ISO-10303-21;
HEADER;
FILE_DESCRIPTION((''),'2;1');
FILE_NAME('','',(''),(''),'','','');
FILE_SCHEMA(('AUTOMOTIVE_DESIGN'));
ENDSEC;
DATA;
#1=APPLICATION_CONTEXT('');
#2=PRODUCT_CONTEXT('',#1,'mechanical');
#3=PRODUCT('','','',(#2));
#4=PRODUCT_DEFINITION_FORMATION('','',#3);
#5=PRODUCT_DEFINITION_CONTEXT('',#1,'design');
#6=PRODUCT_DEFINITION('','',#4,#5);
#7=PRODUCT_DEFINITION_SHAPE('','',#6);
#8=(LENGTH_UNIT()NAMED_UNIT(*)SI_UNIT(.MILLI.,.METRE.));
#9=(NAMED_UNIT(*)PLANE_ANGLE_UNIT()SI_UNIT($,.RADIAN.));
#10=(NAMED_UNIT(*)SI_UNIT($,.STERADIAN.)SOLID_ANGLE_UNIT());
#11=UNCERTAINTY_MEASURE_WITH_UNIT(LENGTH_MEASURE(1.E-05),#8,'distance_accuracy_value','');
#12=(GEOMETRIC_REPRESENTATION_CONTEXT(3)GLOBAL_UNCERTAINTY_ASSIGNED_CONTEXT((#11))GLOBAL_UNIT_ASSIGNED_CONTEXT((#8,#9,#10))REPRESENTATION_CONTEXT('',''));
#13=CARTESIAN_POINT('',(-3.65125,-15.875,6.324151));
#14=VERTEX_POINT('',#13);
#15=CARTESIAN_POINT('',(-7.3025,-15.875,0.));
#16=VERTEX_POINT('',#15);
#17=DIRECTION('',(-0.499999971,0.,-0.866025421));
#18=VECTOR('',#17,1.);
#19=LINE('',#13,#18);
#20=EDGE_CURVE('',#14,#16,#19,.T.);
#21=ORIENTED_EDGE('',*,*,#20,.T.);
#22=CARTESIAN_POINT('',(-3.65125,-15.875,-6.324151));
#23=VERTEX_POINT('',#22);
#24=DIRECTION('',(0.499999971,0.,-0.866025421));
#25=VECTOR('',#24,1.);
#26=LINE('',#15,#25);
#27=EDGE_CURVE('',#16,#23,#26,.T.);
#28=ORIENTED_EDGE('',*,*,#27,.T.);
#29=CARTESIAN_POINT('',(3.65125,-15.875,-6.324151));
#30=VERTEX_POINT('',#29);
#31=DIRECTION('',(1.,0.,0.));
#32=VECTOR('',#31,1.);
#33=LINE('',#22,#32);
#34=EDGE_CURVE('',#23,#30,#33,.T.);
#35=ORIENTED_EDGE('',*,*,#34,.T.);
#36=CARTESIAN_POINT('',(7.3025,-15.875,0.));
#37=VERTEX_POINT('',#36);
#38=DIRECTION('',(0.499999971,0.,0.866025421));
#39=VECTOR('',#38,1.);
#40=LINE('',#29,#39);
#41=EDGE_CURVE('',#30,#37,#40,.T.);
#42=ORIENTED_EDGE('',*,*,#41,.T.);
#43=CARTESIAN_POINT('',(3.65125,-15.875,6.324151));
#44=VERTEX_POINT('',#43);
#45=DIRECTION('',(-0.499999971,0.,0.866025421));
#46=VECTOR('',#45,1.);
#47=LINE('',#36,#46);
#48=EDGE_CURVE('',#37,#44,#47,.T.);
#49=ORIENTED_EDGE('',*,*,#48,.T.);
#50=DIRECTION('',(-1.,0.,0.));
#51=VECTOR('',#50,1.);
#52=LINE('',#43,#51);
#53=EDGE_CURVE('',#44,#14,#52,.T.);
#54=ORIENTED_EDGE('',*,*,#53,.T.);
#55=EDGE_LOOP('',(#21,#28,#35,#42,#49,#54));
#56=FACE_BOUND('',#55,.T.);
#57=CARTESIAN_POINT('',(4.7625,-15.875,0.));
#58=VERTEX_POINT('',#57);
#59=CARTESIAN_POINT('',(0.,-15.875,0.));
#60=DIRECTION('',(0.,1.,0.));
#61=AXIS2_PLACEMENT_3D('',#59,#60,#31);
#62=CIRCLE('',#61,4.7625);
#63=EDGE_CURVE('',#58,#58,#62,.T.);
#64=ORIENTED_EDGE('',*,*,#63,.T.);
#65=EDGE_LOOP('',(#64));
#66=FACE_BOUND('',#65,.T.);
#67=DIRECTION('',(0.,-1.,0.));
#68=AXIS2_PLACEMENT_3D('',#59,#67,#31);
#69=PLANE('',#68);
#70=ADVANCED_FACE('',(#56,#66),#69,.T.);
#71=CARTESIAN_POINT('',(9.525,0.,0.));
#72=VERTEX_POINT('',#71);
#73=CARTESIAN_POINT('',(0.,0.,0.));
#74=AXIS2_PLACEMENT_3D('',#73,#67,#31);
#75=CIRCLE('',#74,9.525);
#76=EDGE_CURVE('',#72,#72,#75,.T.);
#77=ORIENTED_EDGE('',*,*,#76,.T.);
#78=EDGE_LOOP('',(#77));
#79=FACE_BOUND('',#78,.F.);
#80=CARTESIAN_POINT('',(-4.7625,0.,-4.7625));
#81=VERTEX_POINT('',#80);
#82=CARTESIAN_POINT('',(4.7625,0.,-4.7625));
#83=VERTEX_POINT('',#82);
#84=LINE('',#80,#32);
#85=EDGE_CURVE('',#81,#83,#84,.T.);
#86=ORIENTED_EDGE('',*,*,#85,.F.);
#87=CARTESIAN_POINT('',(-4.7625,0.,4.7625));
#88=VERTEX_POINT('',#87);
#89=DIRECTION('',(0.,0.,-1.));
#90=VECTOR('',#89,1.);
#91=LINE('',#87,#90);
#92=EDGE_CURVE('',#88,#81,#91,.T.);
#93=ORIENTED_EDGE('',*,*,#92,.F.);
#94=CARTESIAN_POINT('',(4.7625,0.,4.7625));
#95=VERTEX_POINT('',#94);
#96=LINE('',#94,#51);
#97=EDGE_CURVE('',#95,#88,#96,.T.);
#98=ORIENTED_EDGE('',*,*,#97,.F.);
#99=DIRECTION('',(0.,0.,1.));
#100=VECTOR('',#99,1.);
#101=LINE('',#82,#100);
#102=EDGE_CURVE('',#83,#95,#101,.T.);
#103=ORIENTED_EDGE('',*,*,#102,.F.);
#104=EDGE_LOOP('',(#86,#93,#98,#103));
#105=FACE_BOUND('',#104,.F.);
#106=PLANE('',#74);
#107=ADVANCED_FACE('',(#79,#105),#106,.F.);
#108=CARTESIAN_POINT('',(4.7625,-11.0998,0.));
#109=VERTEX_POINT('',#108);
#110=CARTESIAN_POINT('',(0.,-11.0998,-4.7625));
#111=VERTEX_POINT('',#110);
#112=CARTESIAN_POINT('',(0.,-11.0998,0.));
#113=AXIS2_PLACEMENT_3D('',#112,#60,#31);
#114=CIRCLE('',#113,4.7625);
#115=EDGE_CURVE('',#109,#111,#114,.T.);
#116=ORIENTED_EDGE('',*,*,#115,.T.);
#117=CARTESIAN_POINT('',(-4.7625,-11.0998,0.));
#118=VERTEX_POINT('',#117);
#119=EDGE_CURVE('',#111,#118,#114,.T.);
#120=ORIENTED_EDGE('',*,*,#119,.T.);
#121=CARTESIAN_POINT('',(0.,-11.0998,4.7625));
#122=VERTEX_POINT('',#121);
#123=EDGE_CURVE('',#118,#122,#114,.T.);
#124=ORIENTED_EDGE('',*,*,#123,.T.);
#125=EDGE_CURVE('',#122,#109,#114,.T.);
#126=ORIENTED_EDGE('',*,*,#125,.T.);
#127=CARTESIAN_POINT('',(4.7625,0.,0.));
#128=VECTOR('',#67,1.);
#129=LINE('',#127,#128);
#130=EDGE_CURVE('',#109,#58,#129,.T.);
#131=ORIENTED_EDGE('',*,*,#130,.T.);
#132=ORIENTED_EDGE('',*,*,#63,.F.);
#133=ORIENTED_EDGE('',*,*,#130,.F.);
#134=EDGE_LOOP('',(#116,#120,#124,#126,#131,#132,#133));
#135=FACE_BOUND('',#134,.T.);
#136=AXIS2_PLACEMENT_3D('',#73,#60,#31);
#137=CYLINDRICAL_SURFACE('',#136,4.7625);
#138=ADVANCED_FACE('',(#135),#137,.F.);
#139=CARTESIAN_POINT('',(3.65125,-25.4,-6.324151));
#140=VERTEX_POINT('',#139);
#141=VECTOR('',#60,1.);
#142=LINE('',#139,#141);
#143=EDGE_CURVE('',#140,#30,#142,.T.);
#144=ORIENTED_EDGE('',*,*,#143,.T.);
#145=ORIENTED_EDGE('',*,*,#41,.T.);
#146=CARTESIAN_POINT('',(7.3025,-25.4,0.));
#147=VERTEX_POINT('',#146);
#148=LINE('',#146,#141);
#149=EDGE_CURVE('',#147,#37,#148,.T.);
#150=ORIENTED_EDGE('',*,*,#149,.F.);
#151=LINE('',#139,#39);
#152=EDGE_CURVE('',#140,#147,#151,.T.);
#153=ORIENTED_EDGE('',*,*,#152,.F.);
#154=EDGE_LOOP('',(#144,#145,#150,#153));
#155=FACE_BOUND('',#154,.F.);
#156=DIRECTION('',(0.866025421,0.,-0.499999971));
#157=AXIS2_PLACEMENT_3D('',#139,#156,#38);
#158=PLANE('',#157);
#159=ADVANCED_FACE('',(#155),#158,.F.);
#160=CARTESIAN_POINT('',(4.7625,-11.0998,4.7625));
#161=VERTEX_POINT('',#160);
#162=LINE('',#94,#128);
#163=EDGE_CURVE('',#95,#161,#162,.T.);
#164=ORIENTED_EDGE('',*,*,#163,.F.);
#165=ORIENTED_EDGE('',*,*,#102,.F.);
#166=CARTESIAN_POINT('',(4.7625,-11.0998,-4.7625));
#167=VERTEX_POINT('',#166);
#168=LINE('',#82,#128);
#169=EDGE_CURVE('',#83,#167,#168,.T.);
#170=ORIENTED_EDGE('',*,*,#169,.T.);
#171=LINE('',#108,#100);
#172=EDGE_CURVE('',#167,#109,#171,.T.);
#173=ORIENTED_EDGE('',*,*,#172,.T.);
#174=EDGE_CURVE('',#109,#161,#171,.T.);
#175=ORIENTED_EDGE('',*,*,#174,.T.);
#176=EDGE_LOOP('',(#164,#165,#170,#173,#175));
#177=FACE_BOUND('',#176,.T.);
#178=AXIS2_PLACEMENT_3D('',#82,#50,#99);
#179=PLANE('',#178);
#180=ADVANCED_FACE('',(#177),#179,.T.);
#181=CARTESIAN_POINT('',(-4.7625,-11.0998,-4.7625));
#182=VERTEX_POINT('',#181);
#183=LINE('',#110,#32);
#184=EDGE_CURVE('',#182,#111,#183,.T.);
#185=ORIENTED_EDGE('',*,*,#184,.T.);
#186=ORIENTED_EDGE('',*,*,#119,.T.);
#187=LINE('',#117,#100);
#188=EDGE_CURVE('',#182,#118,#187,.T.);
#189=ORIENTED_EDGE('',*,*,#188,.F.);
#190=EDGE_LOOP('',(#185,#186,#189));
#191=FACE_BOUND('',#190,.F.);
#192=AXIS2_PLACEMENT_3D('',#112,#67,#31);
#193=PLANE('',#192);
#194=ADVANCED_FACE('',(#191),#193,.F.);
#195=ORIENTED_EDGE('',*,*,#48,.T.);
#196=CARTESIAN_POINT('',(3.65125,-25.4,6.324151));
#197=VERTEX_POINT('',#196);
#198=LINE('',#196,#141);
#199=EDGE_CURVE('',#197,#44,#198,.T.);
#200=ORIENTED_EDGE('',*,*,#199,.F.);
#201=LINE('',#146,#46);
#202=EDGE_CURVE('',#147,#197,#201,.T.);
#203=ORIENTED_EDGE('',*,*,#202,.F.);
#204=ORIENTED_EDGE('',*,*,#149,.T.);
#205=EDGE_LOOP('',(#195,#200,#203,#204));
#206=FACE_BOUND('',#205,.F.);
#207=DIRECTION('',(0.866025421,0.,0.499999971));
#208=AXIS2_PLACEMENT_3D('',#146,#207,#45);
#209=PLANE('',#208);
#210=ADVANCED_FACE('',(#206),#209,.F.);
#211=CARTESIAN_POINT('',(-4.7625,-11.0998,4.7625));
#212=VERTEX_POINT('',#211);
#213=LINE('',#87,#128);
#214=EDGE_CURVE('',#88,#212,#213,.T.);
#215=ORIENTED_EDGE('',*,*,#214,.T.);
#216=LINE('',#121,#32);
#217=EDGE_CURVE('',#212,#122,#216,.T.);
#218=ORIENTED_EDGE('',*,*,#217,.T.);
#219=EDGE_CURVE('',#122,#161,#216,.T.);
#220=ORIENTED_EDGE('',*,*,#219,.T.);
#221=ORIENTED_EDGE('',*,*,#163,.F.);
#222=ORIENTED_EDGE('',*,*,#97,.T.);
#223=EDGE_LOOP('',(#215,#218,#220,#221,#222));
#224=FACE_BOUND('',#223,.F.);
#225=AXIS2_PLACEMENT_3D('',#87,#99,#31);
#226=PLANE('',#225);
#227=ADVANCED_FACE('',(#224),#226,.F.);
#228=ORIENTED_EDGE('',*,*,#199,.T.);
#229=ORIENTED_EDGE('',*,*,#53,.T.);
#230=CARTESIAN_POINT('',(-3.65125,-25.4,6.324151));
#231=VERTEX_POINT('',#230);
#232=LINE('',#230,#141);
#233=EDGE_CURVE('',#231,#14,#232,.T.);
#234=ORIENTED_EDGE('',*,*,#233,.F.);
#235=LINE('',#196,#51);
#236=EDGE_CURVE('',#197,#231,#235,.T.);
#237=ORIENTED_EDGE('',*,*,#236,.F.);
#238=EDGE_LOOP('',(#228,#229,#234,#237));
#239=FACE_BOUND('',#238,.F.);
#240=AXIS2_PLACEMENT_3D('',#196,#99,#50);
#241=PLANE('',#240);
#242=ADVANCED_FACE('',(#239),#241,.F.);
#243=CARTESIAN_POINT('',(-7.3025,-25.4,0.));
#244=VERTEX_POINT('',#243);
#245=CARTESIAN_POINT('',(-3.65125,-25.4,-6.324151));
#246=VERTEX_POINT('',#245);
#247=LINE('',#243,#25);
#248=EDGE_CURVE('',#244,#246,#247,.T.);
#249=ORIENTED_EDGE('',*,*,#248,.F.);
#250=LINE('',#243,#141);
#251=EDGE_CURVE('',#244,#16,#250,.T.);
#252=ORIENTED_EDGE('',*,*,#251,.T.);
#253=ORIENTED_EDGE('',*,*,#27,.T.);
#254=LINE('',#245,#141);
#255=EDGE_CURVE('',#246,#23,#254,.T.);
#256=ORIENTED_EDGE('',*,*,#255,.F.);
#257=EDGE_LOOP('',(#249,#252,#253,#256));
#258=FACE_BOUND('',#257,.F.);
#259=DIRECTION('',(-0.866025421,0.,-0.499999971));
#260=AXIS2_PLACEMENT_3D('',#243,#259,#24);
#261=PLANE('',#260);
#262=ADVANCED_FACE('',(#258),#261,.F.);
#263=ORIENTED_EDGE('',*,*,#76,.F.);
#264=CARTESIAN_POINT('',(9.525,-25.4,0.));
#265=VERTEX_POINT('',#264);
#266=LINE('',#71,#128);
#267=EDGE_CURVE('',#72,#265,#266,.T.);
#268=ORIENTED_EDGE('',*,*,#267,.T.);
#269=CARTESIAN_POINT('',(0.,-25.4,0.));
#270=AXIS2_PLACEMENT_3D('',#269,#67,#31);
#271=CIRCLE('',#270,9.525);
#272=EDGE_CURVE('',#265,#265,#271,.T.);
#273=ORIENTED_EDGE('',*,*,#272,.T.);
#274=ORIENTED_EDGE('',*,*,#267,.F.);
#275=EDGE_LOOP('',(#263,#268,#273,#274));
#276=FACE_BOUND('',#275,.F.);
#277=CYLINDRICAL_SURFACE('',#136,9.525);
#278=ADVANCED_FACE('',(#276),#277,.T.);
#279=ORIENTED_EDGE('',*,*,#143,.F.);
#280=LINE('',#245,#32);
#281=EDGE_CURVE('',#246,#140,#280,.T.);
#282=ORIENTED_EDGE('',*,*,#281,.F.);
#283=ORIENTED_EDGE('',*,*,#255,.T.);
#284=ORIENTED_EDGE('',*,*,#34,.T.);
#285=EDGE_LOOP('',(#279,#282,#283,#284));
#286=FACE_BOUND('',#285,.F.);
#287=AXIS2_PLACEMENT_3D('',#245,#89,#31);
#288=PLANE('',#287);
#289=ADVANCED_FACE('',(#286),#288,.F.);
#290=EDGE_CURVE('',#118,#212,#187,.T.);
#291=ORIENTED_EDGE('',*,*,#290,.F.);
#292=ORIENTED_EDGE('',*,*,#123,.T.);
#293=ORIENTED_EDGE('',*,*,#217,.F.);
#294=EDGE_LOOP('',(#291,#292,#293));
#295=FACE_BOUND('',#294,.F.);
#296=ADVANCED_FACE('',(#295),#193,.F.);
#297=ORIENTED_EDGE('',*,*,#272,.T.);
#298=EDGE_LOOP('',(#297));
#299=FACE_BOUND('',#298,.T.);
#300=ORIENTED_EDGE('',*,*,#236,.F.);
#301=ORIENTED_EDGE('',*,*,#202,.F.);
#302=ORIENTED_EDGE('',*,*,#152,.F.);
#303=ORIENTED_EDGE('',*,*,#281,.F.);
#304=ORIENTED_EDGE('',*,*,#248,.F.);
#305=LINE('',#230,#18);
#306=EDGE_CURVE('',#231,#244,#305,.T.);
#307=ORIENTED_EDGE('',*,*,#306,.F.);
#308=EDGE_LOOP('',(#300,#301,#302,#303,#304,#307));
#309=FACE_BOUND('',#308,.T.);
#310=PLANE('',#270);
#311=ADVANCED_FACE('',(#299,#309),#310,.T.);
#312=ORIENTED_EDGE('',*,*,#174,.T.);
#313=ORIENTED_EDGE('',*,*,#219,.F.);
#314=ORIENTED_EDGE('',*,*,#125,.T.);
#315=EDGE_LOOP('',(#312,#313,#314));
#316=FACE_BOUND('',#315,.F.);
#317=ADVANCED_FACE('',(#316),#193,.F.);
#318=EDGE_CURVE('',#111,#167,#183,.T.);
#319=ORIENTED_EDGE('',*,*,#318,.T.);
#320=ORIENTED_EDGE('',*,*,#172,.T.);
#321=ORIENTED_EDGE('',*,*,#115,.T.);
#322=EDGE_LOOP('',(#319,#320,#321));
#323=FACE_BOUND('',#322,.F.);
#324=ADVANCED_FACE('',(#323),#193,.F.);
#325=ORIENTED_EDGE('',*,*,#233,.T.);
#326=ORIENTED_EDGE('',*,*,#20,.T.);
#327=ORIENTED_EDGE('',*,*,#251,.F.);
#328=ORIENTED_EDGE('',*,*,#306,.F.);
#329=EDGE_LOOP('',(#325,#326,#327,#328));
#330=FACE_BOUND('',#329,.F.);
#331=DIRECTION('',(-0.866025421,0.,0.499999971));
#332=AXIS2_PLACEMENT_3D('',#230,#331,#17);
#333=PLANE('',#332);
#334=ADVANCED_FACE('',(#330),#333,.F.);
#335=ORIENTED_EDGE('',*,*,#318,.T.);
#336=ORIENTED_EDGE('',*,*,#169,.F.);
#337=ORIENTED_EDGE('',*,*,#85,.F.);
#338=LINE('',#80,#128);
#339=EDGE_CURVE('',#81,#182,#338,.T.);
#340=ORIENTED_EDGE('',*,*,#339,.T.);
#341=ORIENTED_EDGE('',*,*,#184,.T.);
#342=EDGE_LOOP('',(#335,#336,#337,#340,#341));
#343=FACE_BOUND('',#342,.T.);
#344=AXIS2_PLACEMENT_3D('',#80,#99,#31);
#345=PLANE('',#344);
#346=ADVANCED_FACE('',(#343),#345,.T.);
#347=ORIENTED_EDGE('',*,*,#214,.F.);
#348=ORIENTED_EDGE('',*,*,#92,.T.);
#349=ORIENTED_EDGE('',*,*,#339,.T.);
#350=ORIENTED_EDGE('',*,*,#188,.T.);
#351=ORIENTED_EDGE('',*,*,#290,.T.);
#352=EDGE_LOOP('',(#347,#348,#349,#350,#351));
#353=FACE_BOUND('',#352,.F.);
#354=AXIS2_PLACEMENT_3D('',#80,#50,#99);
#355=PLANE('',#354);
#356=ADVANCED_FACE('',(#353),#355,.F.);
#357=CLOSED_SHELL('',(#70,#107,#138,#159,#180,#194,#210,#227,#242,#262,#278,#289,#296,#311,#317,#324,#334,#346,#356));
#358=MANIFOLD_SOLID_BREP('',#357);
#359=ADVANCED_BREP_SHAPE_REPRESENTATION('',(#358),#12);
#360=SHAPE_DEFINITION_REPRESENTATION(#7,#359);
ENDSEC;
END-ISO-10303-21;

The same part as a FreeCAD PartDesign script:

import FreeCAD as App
import Part
import Sketcher
from FreeCAD import Vector
Q = App.Units.Quantity

doc = App.newDocument("Part")
body = doc.addObject("PartDesign::Body", "Body")

sketch1 = doc.addObject("Sketcher::SketchObject", "Sketch")
body.addObject(sketch1)
sketch1.AttachmentSupport = (doc.XZ_Plane, [""])
sketch1.MapMode = "FlatFace"
sketch1.addGeometry(Part.Circle(Vector(0, 0, 0), Vector(0, 0, 1), 9.525), False)
sketch1.addConstraint([
    Sketcher.Constraint("Coincident", 0, 3, -1, 1),
    Sketcher.Constraint("Diameter", 0, Q("0.75 in")),
])
pad1 = doc.addObject("PartDesign::Pad", "Pad")
body.addObject(pad1)
pad1.Profile = sketch1
pad1.Length = Q("1 in")

sketch2 = doc.addObject("Sketcher::SketchObject", "Sketch001")
body.addObject(sketch2)
sketch2.AttachmentSupport = (doc.XZ_Plane, [""])
sketch2.MapMode = "FlatFace"
sketch2.addGeometry(Part.Circle(Vector(0, 0, 0), Vector(0, 0, 1), 4.7625), False)
sketch2.addConstraint([
    Sketcher.Constraint("Coincident", 0, 3, -1, 1),
    Sketcher.Constraint("Diameter", 0, Q("0.375 in")),
])
pocket1 = doc.addObject("PartDesign::Pocket", "Pocket")
body.addObject(pocket1)
pocket1.Profile = sketch2
pocket1.Type = "ThroughAll"
pocket1.Reversed = True

sketch3 = doc.addObject("Sketcher::SketchObject", "Sketch002")
body.addObject(sketch3)
sketch3.AttachmentSupport = (doc.XZ_Plane, [""])
sketch3.MapMode = "FlatFace"
sketch3.addGeometry([
    Part.LineSegment(Vector(-4.7625, 4.7625, 0), Vector(-4.7625, -4.7625, 0)),
    Part.LineSegment(Vector(-4.7625, -4.7625, 0), Vector(4.7625, -4.7625, 0)),
    Part.LineSegment(Vector(4.7625, -4.7625, 0), Vector(4.7625, 4.7625, 0)),
    Part.LineSegment(Vector(4.7625, 4.7625, 0), Vector(-4.7625, 4.7625, 0)),
], False)
sketch3.addConstraint([
    Sketcher.Constraint("Coincident", 0, 2, 1, 1),
    Sketcher.Constraint("Coincident", 1, 2, 2, 1),
    Sketcher.Constraint("Coincident", 2, 2, 3, 1),
    Sketcher.Constraint("Coincident", 3, 2, 0, 1),
    Sketcher.Constraint("Vertical", 0),
    Sketcher.Constraint("Horizontal", 1),
    Sketcher.Constraint("Vertical", 2),
    Sketcher.Constraint("Horizontal", 3),
    Sketcher.Constraint("Symmetric", 0, 2, 2, 2, -1, 1),
    Sketcher.Constraint("Equal", 3, 0),
    Sketcher.Constraint("DistanceX", 1, 1, 1, 2, Q("0.375 in")),
])
pocket2 = doc.addObject("PartDesign::Pocket", "Pocket001")
body.addObject(pocket2)
pocket2.Profile = sketch3
pocket2.Length = Q("0.437 in")
pocket2.Reversed = True

sketch4 = doc.addObject("Sketcher::SketchObject", "Sketch003")
body.addObject(sketch4)
sketch4.AttachmentSupport = (doc.XZ_Plane, [""])
sketch4.MapMode = "FlatFace"
sketch4.AttachmentOffset = App.Placement(Vector(0, 0, 1 * 25.4), App.Rotation())
sketch4.addGeometry([
    Part.LineSegment(Vector(3.65125, 6.324151, 0), Vector(-3.65125, 6.324151, 0)),
    Part.LineSegment(Vector(-3.65125, 6.324151, 0), Vector(-7.3025, 0, 0)),
    Part.LineSegment(Vector(-7.3025, 0, 0), Vector(-3.65125, -6.324151, 0)),
    Part.LineSegment(Vector(-3.65125, -6.324151, 0), Vector(3.65125, -6.324151, 0)),
    Part.LineSegment(Vector(3.65125, -6.324151, 0), Vector(7.3025, 0, 0)),
    Part.LineSegment(Vector(7.3025, 0, 0), Vector(3.65125, 6.324151, 0)),
], False)
sketch4.addConstraint([
    Sketcher.Constraint("Coincident", 0, 2, 1, 1),
    Sketcher.Constraint("Coincident", 1, 2, 2, 1),
    Sketcher.Constraint("Coincident", 2, 2, 3, 1),
    Sketcher.Constraint("Coincident", 3, 2, 4, 1),
    Sketcher.Constraint("Coincident", 4, 2, 5, 1),
    Sketcher.Constraint("Coincident", 5, 2, 0, 1),
    Sketcher.Constraint("Horizontal", 0),
    Sketcher.Constraint("Horizontal", 3),
    Sketcher.Constraint("Symmetric", 0, 2, 3, 2, -1, 1),
    Sketcher.Constraint("Symmetric", 1, 2, 4, 2, -1, 1),
    Sketcher.Constraint("PointOnObject", 1, 2, -1),
    Sketcher.Constraint("Parallel", 2, 5),
    Sketcher.Constraint("Vertical", 0, 2, 2, 2),
    Sketcher.Constraint("Angle", 1, Q("-119.999998 deg")),
    Sketcher.Constraint("DistanceX", 0, 2, 0, 1, Q("0.2875 in")),
    Sketcher.Constraint("DistanceX", 1, 2, 4, 2, Q("0.575 in")),
])
pocket3 = doc.addObject("PartDesign::Pocket", "Pocket002")
body.addObject(pocket3)
pocket3.Profile = sketch4
pocket3.Length = Q("0.375 in")

doc.recompute()
